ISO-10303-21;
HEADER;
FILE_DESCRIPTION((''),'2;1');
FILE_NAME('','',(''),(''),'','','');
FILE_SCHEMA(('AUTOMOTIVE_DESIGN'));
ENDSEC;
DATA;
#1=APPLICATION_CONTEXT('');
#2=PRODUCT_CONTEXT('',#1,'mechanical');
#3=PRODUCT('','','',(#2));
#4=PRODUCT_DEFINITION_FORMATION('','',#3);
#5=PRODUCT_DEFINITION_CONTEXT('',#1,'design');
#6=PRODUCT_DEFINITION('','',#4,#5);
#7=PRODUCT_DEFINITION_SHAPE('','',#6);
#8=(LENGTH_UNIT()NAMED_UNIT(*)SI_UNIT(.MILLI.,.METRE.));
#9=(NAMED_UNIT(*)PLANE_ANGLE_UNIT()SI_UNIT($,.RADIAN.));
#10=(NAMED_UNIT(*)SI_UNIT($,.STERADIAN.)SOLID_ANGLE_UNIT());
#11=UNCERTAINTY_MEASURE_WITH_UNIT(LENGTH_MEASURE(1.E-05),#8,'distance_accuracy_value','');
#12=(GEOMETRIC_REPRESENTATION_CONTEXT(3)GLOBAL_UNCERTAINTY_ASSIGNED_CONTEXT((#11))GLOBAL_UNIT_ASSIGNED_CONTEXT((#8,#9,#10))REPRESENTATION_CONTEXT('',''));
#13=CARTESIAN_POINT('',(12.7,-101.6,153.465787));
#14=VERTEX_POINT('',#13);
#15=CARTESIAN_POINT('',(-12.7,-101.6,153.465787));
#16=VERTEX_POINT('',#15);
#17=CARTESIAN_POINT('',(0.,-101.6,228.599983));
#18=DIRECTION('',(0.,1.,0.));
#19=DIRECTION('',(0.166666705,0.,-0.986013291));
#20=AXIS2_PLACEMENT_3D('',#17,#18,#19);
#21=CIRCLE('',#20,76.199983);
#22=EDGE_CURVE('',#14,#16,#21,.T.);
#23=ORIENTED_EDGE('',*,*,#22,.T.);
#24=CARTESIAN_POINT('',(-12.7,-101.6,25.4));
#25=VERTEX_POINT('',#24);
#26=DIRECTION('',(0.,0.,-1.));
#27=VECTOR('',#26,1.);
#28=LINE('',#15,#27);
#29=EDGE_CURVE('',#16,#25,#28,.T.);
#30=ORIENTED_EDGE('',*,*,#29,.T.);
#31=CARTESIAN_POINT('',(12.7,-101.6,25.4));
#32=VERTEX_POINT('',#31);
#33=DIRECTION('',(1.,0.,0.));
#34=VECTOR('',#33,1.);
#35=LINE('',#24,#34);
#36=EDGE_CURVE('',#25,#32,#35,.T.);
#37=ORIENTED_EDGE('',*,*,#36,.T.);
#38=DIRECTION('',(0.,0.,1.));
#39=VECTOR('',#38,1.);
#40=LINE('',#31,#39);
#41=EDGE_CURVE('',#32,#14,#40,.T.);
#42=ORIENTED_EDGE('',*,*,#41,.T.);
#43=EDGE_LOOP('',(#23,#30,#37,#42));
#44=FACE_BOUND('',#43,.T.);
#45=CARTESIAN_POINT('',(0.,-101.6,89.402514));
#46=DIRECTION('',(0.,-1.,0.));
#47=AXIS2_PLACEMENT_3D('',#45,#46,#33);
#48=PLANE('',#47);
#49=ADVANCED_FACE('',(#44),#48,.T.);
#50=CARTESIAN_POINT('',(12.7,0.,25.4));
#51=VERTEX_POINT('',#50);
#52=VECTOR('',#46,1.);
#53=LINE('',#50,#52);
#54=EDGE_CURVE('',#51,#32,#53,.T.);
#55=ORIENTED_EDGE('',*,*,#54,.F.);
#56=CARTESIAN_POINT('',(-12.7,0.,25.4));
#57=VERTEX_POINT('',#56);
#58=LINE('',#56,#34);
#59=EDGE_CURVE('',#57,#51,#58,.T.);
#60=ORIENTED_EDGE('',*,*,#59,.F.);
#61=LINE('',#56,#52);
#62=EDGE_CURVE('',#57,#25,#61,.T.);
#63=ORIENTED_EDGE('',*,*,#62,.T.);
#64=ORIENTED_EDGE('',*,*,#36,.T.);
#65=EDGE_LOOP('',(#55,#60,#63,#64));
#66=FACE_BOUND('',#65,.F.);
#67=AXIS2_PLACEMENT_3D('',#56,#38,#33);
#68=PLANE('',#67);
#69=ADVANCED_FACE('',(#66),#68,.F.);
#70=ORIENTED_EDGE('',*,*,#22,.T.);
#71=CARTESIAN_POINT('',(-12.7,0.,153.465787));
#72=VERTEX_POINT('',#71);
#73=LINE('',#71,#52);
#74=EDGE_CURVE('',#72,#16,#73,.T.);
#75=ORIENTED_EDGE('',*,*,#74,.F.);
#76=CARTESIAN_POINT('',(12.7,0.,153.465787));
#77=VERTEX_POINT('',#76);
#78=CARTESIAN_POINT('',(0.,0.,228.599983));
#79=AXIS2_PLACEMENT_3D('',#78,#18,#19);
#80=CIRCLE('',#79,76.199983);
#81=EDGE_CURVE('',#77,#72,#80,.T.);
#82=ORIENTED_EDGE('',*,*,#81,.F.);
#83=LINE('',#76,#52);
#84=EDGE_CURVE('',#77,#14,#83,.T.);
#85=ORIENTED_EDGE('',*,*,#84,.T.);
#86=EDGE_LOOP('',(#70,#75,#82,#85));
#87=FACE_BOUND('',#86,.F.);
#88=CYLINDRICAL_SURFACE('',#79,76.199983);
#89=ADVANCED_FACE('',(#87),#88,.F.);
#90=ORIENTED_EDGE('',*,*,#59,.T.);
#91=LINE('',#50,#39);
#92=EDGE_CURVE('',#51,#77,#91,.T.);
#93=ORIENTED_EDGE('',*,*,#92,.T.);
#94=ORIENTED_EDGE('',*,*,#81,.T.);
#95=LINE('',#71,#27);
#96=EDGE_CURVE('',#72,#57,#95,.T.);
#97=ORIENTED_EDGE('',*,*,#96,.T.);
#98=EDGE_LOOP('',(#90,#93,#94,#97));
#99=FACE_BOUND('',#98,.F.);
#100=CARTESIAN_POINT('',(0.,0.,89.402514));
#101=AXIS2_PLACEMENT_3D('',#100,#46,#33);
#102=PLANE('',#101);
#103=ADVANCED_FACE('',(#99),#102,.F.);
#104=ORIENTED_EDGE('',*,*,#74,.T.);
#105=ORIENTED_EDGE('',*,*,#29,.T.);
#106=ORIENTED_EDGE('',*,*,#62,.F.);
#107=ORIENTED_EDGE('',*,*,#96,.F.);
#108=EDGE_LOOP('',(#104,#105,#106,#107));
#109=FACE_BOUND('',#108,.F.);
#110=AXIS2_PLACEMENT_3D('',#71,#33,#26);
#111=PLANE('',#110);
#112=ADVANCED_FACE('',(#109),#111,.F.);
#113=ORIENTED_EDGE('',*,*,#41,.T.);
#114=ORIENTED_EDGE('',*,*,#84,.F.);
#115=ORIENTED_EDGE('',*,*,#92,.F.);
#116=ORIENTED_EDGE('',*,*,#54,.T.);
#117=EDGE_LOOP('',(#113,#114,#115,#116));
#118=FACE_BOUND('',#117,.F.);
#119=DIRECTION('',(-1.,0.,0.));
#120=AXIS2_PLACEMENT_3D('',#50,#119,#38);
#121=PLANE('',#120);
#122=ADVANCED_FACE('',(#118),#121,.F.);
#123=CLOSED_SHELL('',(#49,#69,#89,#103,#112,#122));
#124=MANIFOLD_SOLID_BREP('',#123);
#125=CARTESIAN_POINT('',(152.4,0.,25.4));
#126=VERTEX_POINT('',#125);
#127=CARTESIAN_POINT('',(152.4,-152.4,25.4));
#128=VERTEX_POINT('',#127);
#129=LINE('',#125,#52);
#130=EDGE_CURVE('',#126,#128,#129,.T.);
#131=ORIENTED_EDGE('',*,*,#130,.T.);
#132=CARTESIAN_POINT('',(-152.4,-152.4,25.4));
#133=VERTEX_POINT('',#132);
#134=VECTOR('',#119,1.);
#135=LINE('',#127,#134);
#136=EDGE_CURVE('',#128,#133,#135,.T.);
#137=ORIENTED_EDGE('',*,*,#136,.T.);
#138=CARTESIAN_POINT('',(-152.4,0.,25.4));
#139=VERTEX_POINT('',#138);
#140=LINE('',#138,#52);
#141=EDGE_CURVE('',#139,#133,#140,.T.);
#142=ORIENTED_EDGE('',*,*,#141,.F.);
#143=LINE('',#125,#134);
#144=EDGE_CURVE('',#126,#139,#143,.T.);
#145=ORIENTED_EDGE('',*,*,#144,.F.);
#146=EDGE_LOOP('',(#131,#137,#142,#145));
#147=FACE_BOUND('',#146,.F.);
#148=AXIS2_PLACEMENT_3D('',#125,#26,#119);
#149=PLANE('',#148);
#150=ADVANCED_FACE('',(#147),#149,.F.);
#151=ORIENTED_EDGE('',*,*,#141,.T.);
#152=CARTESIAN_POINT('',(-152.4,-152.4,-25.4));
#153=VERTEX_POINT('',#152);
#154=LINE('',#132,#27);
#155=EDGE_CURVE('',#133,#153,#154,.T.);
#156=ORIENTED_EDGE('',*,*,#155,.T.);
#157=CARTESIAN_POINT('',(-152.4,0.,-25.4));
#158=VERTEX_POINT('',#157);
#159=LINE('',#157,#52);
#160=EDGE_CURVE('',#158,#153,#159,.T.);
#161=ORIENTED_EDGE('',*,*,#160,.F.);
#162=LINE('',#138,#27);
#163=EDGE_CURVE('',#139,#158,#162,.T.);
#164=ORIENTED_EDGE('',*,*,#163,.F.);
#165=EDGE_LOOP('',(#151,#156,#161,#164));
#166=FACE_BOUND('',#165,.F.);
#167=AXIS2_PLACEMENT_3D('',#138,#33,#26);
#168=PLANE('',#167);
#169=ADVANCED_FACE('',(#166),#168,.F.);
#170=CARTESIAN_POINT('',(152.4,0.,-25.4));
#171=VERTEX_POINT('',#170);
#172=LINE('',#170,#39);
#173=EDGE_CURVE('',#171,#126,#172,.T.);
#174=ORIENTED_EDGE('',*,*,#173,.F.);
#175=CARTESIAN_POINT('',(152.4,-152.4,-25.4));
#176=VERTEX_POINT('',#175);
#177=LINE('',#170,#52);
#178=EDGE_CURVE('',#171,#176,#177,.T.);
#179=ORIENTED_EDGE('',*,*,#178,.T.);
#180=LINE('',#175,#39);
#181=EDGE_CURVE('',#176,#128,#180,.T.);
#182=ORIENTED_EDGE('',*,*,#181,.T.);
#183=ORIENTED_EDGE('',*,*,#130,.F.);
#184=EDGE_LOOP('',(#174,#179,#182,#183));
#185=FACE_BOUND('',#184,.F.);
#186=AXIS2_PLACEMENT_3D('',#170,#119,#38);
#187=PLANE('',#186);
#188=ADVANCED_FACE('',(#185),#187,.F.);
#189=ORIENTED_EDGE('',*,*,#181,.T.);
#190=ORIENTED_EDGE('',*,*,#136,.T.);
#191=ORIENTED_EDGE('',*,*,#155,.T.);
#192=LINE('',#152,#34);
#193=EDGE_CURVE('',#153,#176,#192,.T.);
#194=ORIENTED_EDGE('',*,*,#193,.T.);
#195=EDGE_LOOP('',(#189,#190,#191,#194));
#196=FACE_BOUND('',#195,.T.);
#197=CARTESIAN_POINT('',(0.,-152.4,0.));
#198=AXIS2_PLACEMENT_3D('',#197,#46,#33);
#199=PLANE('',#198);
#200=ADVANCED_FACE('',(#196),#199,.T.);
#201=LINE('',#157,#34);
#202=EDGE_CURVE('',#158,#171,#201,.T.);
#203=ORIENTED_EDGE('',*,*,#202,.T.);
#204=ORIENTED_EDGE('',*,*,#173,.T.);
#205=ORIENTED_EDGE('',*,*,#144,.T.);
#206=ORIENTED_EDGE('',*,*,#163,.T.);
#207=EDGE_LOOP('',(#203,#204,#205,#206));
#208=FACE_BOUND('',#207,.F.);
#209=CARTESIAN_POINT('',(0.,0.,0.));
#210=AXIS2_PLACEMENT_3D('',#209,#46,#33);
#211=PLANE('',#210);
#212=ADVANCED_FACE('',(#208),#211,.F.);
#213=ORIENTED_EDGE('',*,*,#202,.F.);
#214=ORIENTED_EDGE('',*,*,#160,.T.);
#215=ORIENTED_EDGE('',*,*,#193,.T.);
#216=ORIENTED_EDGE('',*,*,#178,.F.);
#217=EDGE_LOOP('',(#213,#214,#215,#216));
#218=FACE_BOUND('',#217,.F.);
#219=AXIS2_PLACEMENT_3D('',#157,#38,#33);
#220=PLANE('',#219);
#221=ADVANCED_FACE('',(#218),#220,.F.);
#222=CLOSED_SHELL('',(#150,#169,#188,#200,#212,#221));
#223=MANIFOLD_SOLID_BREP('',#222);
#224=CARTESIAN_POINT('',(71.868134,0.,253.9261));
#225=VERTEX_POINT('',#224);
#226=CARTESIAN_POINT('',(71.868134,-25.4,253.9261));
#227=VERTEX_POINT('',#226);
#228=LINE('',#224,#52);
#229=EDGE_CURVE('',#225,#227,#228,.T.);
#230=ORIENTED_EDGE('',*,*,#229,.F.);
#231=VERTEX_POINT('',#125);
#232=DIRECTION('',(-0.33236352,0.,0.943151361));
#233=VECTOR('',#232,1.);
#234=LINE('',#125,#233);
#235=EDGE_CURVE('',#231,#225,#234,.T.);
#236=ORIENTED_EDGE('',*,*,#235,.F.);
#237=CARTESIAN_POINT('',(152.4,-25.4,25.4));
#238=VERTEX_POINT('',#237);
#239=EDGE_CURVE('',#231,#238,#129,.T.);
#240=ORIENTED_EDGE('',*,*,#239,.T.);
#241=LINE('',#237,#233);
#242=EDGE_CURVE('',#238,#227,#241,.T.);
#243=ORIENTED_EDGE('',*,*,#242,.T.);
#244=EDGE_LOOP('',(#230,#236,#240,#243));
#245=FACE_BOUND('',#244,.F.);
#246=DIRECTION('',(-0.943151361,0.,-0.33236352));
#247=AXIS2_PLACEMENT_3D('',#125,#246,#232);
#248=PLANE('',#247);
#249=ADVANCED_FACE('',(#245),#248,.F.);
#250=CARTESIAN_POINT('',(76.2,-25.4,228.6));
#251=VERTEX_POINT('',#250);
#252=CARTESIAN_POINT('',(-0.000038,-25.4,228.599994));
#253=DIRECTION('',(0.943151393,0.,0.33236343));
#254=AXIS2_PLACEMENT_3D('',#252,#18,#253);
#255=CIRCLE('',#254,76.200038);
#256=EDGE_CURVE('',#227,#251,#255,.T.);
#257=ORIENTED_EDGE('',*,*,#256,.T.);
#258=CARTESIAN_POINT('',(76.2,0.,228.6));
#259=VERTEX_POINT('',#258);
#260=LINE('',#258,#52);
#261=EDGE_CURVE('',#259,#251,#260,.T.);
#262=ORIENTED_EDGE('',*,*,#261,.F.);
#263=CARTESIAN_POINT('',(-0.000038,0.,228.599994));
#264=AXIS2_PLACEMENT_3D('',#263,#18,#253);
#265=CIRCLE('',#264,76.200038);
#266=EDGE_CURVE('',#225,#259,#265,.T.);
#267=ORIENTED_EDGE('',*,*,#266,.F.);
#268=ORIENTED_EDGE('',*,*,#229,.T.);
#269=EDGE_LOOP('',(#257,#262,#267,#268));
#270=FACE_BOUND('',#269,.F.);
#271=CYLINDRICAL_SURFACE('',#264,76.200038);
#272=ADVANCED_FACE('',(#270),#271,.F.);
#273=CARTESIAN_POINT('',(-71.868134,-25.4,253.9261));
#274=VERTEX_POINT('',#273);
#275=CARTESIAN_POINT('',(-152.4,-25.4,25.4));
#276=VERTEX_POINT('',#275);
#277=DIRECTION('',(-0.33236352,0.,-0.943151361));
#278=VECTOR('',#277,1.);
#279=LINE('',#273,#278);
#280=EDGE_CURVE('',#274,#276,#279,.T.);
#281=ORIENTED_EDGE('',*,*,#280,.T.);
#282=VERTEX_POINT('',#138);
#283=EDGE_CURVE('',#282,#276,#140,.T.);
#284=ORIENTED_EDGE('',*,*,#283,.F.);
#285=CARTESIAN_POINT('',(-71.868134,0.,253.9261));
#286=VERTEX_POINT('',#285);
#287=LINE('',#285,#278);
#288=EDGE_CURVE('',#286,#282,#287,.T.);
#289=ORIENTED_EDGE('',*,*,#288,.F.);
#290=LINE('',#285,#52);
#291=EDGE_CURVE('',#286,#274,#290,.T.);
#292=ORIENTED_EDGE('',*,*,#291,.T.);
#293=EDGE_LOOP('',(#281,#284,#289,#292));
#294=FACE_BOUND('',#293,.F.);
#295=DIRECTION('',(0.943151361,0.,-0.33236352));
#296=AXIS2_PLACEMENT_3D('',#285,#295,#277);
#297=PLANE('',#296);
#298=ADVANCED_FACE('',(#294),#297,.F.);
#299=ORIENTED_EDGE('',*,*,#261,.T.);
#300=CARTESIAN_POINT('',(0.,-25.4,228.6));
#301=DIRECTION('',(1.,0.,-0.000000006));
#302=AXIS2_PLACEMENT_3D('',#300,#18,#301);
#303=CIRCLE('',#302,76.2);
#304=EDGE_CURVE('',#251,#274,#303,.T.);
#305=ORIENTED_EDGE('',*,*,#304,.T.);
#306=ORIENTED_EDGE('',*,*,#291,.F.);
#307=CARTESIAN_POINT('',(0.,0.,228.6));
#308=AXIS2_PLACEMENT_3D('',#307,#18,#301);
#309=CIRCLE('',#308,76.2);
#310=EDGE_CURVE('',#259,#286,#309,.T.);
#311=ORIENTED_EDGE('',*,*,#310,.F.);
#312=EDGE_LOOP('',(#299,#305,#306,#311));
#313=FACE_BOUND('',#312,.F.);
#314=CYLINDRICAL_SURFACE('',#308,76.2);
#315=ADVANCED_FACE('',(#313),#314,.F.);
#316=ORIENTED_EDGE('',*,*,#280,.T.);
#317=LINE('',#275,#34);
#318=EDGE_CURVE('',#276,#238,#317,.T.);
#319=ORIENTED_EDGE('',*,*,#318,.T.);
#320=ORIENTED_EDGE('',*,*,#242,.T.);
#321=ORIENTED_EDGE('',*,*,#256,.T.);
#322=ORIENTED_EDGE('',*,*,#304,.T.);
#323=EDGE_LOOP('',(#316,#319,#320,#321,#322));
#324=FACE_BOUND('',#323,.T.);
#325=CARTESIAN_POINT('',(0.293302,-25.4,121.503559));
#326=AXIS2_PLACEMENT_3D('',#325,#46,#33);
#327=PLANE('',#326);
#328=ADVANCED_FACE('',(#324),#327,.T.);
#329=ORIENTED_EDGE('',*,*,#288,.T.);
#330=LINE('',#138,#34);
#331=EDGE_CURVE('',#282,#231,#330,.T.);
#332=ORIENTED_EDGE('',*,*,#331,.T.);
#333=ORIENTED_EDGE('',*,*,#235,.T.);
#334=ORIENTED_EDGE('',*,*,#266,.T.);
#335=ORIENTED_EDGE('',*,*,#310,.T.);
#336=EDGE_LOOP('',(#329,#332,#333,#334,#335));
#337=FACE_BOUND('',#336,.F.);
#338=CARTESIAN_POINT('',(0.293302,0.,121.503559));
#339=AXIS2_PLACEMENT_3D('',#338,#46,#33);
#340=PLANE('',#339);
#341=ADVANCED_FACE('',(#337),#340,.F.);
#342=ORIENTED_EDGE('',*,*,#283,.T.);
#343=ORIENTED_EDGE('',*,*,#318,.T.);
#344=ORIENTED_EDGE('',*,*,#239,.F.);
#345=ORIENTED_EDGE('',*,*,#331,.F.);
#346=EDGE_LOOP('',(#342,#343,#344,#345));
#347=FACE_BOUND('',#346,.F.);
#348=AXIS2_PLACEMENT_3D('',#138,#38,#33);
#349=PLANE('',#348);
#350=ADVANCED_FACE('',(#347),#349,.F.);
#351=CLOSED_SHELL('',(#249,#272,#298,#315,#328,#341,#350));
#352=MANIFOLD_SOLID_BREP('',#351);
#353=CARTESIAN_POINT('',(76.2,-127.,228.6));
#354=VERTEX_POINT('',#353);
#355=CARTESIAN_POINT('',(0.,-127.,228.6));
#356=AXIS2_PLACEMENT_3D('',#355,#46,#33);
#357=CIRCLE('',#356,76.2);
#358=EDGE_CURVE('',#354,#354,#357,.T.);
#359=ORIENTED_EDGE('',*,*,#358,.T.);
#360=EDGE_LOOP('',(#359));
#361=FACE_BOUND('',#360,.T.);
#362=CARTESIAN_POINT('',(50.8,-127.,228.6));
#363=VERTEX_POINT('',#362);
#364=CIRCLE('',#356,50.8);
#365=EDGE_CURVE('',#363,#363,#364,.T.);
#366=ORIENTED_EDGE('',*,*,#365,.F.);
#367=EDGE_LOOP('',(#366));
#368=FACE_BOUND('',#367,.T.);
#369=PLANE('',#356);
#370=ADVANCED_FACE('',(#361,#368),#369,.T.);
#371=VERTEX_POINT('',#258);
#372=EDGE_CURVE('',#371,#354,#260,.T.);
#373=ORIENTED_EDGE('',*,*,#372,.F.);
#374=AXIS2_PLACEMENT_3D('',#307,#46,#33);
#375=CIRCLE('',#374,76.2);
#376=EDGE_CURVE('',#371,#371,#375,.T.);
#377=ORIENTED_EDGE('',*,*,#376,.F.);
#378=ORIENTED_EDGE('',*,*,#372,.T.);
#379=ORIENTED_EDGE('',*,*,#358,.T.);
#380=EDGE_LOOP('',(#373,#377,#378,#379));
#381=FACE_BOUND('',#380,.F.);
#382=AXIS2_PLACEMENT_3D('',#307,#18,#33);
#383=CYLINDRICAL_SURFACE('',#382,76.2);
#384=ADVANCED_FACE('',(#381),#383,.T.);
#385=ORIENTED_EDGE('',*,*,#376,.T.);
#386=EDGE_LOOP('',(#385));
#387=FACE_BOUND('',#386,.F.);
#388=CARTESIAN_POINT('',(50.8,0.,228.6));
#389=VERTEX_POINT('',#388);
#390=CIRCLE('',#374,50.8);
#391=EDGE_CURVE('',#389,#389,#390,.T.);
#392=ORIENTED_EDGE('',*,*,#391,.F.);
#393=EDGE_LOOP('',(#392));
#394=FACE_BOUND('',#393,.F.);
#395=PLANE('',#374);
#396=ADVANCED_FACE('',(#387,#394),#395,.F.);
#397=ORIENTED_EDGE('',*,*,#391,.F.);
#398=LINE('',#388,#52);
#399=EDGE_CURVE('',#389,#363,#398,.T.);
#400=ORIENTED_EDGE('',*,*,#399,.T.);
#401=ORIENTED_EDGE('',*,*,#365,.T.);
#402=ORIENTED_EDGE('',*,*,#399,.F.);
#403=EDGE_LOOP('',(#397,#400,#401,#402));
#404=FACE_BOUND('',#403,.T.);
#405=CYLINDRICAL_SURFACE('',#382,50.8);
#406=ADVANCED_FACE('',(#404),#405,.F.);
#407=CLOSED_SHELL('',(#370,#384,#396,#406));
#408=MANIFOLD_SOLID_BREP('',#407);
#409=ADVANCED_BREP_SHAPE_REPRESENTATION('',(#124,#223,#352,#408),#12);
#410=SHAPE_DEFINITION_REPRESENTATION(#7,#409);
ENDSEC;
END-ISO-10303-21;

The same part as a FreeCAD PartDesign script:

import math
import FreeCAD as App
import Part
import Sketcher
from FreeCAD import Vector
Q = App.Units.Quantity

doc = App.newDocument("Part")
body = doc.addObject("PartDesign::Body", "Body")

sketch1 = body.newObject("Sketcher::SketchObject", "Sketch")
sketch1.AttachmentSupport = (doc.getObject("XZ_Plane"), [""])
sketch1.MapMode = "FlatFace"
sketch1.addGeometry(Part.LineSegment(Vector(-152, -25, 0), Vector(152, -25, 0)), False)
sketch1.addGeometry(Part.LineSegment(Vector(152, -25, 0), Vector(152, 25, 0)), False)
sketch1.addGeometry(Part.LineSegment(Vector(152, 25, 0), Vector(-152, 25, 0)), False)
sketch1.addGeometry(Part.LineSegment(Vector(-152, 25, 0), Vector(-152, -25, 0)), False)
sketch1.addConstraint(Sketcher.Constraint("Coincident", 0, 2, 1, 1))
sketch1.addConstraint(Sketcher.Constraint("Coincident", 1, 2, 2, 1))
sketch1.addConstraint(Sketcher.Constraint("Coincident", 2, 2, 3, 1))
sketch1.addConstraint(Sketcher.Constraint("Coincident", 3, 2, 0, 1))
sketch1.addConstraint(Sketcher.Constraint("Horizontal", 0))
sketch1.addConstraint(Sketcher.Constraint("Vertical", 1))
sketch1.addConstraint(Sketcher.Constraint("Horizontal", 2))
sketch1.addConstraint(Sketcher.Constraint("Vertical", 3))
sketch1.addConstraint(Sketcher.Constraint("Symmetric", 0, 2, 2, 2, -1, 1))
sketch1.addConstraint(Sketcher.Constraint("DistanceX", 0, 1, 0, 2, Q("12 in")))
sketch1.addConstraint(Sketcher.Constraint("DistanceY", 1, 1, 1, 2, Q("2 in")))
pad1 = body.newObject("PartDesign::Pad", "Pad")
pad1.Profile = sketch1
pad1.Length = Q("6 in")
body2 = doc.addObject("PartDesign::Body", "Body001")

sketch2 = body2.newObject("Sketcher::SketchObject", "Sketch001")
sketch2.AttachmentSupport = (doc.getObject("XZ_Plane001"), [""])
sketch2.MapMode = "FlatFace"
sketch2.addGeometry(Part.Circle(Vector(0, 229, 0), Vector(0, 0, 1), 76), False)
sketch2.addGeometry(Part.Circle(Vector(0, 229, 0), Vector(0, 0, 1), 51), False)
sketch2.addConstraint(Sketcher.Constraint("Coincident", 1, 3, 0, 3))
sketch2.addConstraint(Sketcher.Constraint("PointOnObject", 0, 3, -2))
sketch2.addConstraint(Sketcher.Constraint("Diameter", 0, Q("6 in")))
sketch2.addConstraint(Sketcher.Constraint("Diameter", 1, Q("4 in")))
sketch2.addConstraint(Sketcher.Constraint("DistanceY", -1, 1, 0, 3, Q("9 in")))
pad2 = body2.newObject("PartDesign::Pad", "Pad001")
pad2.Profile = sketch2
pad2.Length = Q("5 in")
body3 = doc.addObject("PartDesign::Body", "Body002")

sketch3 = body3.newObject("Sketcher::SketchObject", "Sketch002")
sketch3.AttachmentSupport = (doc.getObject("XZ_Plane002"), [""])
sketch3.MapMode = "FlatFace"
sketch3.addGeometry(Part.LineSegment(Vector(-13, 153, 0), Vector(-13, 25, 0)), False)
sketch3.addGeometry(Part.LineSegment(Vector(-13, 25, 0), Vector(13, 25, 0)), False)
sketch3.addGeometry(Part.LineSegment(Vector(13, 25, 0), Vector(13, 153, 0)), False)
sketch3.addGeometry(Part.ArcOfCircle(Part.Circle(Vector(0, 229, 0), Vector(0, 0, 1), 76), math.radians(-99.59), math.radians(-80.41)), False)
sketch3.addConstraint(Sketcher.Constraint("Coincident", 0, 2, 1, 1))
sketch3.addConstraint(Sketcher.Constraint("Coincident", 1, 2, 2, 1))
sketch3.addConstraint(Sketcher.Constraint("Coincident", 2, 2, 3, 2))
sketch3.addConstraint(Sketcher.Constraint("Coincident", 3, 1, 0, 1))
sketch3.addConstraint(Sketcher.Constraint("Vertical", 0))
sketch3.addConstraint(Sketcher.Constraint("Horizontal", 1))
sketch3.addConstraint(Sketcher.Constraint("Vertical", 2))
sketch3.addConstraint(Sketcher.Constraint("Symmetric", 2, 2, 3, 1, -2))
sketch3.addConstraint(Sketcher.Constraint("DistanceX", 1, 1, 1, 2, Q("1 in")))
sketch3.addConstraint(Sketcher.Constraint("DistanceY", -1, 1, 0, 2, Q("1 in")))
sketch3.addConstraint(Sketcher.Constraint("Radius", 3, Q("76.199983 mm")))
sketch3.addConstraint(Sketcher.Constraint("DistanceY", 0, 2, 0, 1, Q("128.065787 mm")))
pad3 = body3.newObject("PartDesign::Pad", "Pad002")
pad3.Profile = sketch3
pad3.Length = Q("4 in")
body4 = doc.addObject("PartDesign::Body", "Body003")

sketch4 = body4.newObject("Sketcher::SketchObject", "Sketch003")
sketch4.AttachmentSupport = (doc.getObject("XZ_Plane003"), [""])
sketch4.MapMode = "FlatFace"
sketch4.addGeometry(Part.ArcOfCircle(Part.Circle(Vector(-0.000038, 228.599994, 0), Vector(0, 0, 1), 76.200038), math.radians(0.000005), math.radians(19.412289)), False)
sketch4.addGeometry(Part.ArcOfCircle(Part.Circle(Vector(0, 228.6, 0), Vector(0, 0, 1), 76.2), math.radians(160.587706), math.radians(360)), False)
sketch4.addGeometry(Part.LineSegment(Vector(-71.868134, 253.9261, 0), Vector(-152.4, 25.4, 0)), False)
sketch4.addGeometry(Part.LineSegment(Vector(-152.4, 25.4, 0), Vector(152.4, 25.4, 0)), False)
sketch4.addGeometry(Part.LineSegment(Vector(152.4, 25.4, 0), Vector(71.868134, 253.9261, 0)), False)
sketch4.addConstraint(Sketcher.Constraint("Coincident", 0, 1, 1, 2))
sketch4.addConstraint(Sketcher.Constraint("Coincident", 1, 1, 2, 1))
sketch4.addConstraint(Sketcher.Constraint("Coincident", 2, 2, 3, 1))
sketch4.addConstraint(Sketcher.Constraint("Coincident", 3, 2, 4, 1))
sketch4.addConstraint(Sketcher.Constraint("Coincident", 4, 2, 0, 2))
sketch4.addConstraint(Sketcher.Constraint("Horizontal", 3))
sketch4.addConstraint(Sketcher.Constraint("PointOnObject", 1, 3, -2))
sketch4.addConstraint(Sketcher.Constraint("Radius", 1, Q("3 in")))
sketch4.addConstraint(Sketcher.Constraint("DistanceX", 3, 1, 3, 2, Q("12 in")))
sketch4.addConstraint(Sketcher.Constraint("DistanceY", -1, 1, 1, 3, Q("9 in")))
sketch4.addConstraint(Sketcher.Constraint("DistanceY", -1, 1, 0, 1, Q("9 in")))
sketch4.addConstraint(Sketcher.Constraint("DistanceX", 2, 2, -1, 1, Q("6 in")))
sketch4.addConstraint(Sketcher.Constraint("DistanceY", -1, 1, 2, 2, Q("1 in")))
sketch4.addConstraint(Sketcher.Constraint("Radius", 0, Q("76.200038 mm")))
sketch4.addConstraint(Sketcher.Constraint("DistanceY", -1, 1, 1, 1, Q("253.9261 mm")))
sketch4.addConstraint(Sketcher.Constraint("DistanceY", -1, 1, 4, 2, Q("253.9261 mm")))
sketch4.addConstraint(Sketcher.Constraint("Distance", 4, Q("242.300557 mm")))
pad4 = body4.newObject("PartDesign::Pad", "Pad003")
pad4.Profile = sketch4
pad4.Length = Q("1 in")

doc.recompute()
